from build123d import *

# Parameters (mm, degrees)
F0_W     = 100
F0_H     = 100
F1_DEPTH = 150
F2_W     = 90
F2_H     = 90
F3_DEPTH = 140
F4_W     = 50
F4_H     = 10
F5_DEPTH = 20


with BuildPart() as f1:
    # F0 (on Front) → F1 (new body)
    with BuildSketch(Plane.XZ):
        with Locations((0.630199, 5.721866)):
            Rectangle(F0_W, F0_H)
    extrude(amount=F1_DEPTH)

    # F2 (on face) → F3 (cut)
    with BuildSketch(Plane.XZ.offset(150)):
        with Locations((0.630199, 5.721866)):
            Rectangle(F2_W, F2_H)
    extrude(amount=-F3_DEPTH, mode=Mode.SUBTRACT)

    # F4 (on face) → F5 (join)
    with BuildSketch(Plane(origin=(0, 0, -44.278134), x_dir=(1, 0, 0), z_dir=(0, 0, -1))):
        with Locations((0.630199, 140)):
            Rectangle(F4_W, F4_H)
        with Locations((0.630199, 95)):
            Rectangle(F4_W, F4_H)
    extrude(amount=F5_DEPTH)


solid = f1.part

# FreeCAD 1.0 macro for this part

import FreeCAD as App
import Part
import Sketcher
Q = App.Units.Quantity

doc = App.newDocument("Part")
body = doc.addObject("PartDesign::Body", "Body")

sketch1 = doc.addObject("Sketcher::SketchObject", "Sketch")
body.addObject(sketch1)
sketch1.AttachmentSupport = (doc.XZ_Plane, [""])
sketch1.MapMode = "FlatFace"
sketch1.addGeometry(Part.LineSegment(App.Vector(-49.369801, 55.721866, 0), App.Vector(-49.369801, -44.278134, 0)), False)
sketch1.addGeometry(Part.LineSegment(App.Vector(-49.369801, -44.278134, 0), App.Vector(50.630199, -44.278134, 0)), False)
sketch1.addGeometry(Part.LineSegment(App.Vector(50.630199, -44.278134, 0), App.Vector(50.630199, 55.721866, 0)), False)
sketch1.addGeometry(Part.LineSegment(App.Vector(50.630199, 55.721866, 0), App.Vector(-49.369801, 55.721866, 0)), False)
sketch1.addConstraint(Sketcher.Constraint("Coincident", 0, 2, 1, 1))
sketch1.addConstraint(Sketcher.Constraint("Coincident", 1, 2, 2, 1))
sketch1.addConstraint(Sketcher.Constraint("Coincident", 2, 2, 3, 1))
sketch1.addConstraint(Sketcher.Constraint("Coincident", 3, 2, 0, 1))
sketch1.addConstraint(Sketcher.Constraint("Vertical", 0))
sketch1.addConstraint(Sketcher.Constraint("Horizontal", 1))
sketch1.addConstraint(Sketcher.Constraint("Vertical", 2))
sketch1.addConstraint(Sketcher.Constraint("Horizontal", 3))
sketch1.addConstraint(Sketcher.Constraint("Equal", 3, 0))
sketch1.addConstraint(Sketcher.Constraint("DistanceX", 1, 1, 1, 2, Q("100 mm")))
sketch1.addConstraint(Sketcher.Constraint("DistanceX", 0, 2, -1, 1, Q("49.369801 mm")))
sketch1.addConstraint(Sketcher.Constraint("DistanceY", 0, 2, -1, 1, Q("44.278134 mm")))
pad1 = doc.addObject("PartDesign::Pad", "Pad")
body.addObject(pad1)
pad1.Profile = sketch1
pad1.Length = 150

sketch2 = doc.addObject("Sketcher::SketchObject", "Sketch001")
body.addObject(sketch2)
sketch2.AttachmentSupport = (doc.XZ_Plane, [""])
sketch2.MapMode = "FlatFace"
sketch2.AttachmentOffset = App.Placement(App.Vector(0, 0, 150), App.Rotation())
sketch2.addGeometry(Part.LineSegment(App.Vector(-44.369801, 50.721866, 0), App.Vector(-44.369801, -39.278134, 0)), False)
sketch2.addGeometry(Part.LineSegment(App.Vector(-44.369801, -39.278134, 0), App.Vector(45.630199, -39.278134, 0)), False)
sketch2.addGeometry(Part.LineSegment(App.Vector(45.630199, -39.278134, 0), App.Vector(45.630199, 50.721866, 0)), False)
sketch2.addGeometry(Part.LineSegment(App.Vector(45.630199, 50.721866, 0), App.Vector(-44.369801, 50.721866, 0)), False)
sketch2.addConstraint(Sketcher.Constraint("Coincident", 0, 2, 1, 1))
sketch2.addConstraint(Sketcher.Constraint("Coincident", 1, 2, 2, 1))
sketch2.addConstraint(Sketcher.Constraint("Coincident", 2, 2, 3, 1))
sketch2.addConstraint(Sketcher.Constraint("Coincident", 3, 2, 0, 1))
sketch2.addConstraint(Sketcher.Constraint("Vertical", 0))
sketch2.addConstraint(Sketcher.Constraint("Horizontal", 1))
sketch2.addConstraint(Sketcher.Constraint("Vertical", 2))
sketch2.addConstraint(Sketcher.Constraint("Horizontal", 3))
sketch2.addConstraint(Sketcher.Constraint("Equal", 3, 0))
sketch2.addConstraint(Sketcher.Constraint("DistanceX", 1, 1, 1, 2, Q("90 mm")))
sketch2.addConstraint(Sketcher.Constraint("DistanceX", 0, 2, -1, 1, Q("44.369801 mm")))
sketch2.addConstraint(Sketcher.Constraint("DistanceY", 0, 2, -1, 1, Q("39.278134 mm")))
pocket1 = doc.addObject("PartDesign::Pocket", "Pocket")
body.addObject(pocket1)
pocket1.Profile = sketch2
pocket1.Length = 140

sketch3 = doc.addObject("Sketcher::SketchObject", "Sketch002")
body.addObject(sketch3)
sketch3.AttachmentSupport = (doc.XY_Plane, [""])
sketch3.MapMode = "FlatFace"
sketch3.AttachmentOffset = App.Placement(App.Vector(0, 0, -44.278134), App.Rotation())
sketch3.addGeometry(Part.LineSegment(App.Vector(-24.369801, -145, 0), App.Vector(-24.369801, -135, 0)), False)
sketch3.addGeometry(Part.LineSegment(App.Vector(-24.369801, -135, 0), App.Vector(25.630199, -135, 0)), False)
sketch3.addGeometry(Part.LineSegment(App.Vector(25.630199, -135, 0), App.Vector(25.630199, -145, 0)), False)
sketch3.addGeometry(Part.LineSegment(App.Vector(25.630199, -145, 0), App.Vector(-24.369801, -145, 0)), False)
sketch3.addGeometry(Part.LineSegment(App.Vector(-24.369801, -100, 0), App.Vector(-24.369801, -90, 0)), False)
sketch3.addGeometry(Part.LineSegment(App.Vector(-24.369801, -90, 0), App.Vector(25.630199, -90, 0)), False)
sketch3.addGeometry(Part.LineSegment(App.Vector(25.630199, -90, 0), App.Vector(25.630199, -100, 0)), False)
sketch3.addGeometry(Part.LineSegment(App.Vector(25.630199, -100, 0), App.Vector(-24.369801, -100, 0)), False)
sketch3.addConstraint(Sketcher.Constraint("Coincident", 0, 2, 1, 1))
sketch3.addConstraint(Sketcher.Constraint("Coincident", 1, 2, 2, 1))
sketch3.addConstraint(Sketcher.Constraint("Coincident", 2, 2, 3, 1))
sketch3.addConstraint(Sketcher.Constraint("Coincident", 3, 2, 0, 1))
sketch3.addConstraint(Sketcher.Constraint("Coincident", 4, 2, 5, 1))
sketch3.addConstraint(Sketcher.Constraint("Coincident", 5, 2, 6, 1))
sketch3.addConstraint(Sketcher.Constraint("Coincident", 6, 2, 7, 1))
sketch3.addConstraint(Sketcher.Constraint("Coincident", 7, 2, 4, 1))
sketch3.addConstraint(Sketcher.Constraint("Vertical", 0))
sketch3.addConstraint(Sketcher.Constraint("Horizontal", 1))
sketch3.addConstraint(Sketcher.Constraint("Vertical", 2))
sketch3.addConstraint(Sketcher.Constraint("Horizontal", 3))
sketch3.addConstraint(Sketcher.Constraint("Vertical", 4))
sketch3.addConstraint(Sketcher.Constraint("Horizontal", 5))
sketch3.addConstraint(Sketcher.Constraint("Vertical", 6))
sketch3.addConstraint(Sketcher.Constraint("Horizontal", 7))
sketch3.addConstraint(Sketcher.Constraint("Vertical", 3, 2, 4, 2))
sketch3.addConstraint(Sketcher.Constraint("Vertical", 2, 2, 5, 2))
sketch3.addConstraint(Sketcher.Constraint("Equal", 2, 4))
sketch3.addConstraint(Sketcher.Constraint("DistanceX", 1, 1, 1, 2, Q("50 mm")))
sketch3.addConstraint(Sketcher.Constraint("DistanceY", 0, 1, 0, 2, Q("10 mm")))
sketch3.addConstraint(Sketcher.Constraint("DistanceY", 0, 2, -1, 1, Q("135 mm")))
sketch3.addConstraint(Sketcher.Constraint("DistanceY", 4, 2, -1, 1, Q("90 mm")))
sketch3.addConstraint(Sketcher.Constraint("DistanceX", 0, 2, -1, 1, Q("24.369801 mm")))
pad2 = doc.addObject("PartDesign::Pad", "Pad001")
body.addObject(pad2)
pad2.Profile = sketch3
pad2.Length = 20
pad2.Reversed = True

doc.recompute()
